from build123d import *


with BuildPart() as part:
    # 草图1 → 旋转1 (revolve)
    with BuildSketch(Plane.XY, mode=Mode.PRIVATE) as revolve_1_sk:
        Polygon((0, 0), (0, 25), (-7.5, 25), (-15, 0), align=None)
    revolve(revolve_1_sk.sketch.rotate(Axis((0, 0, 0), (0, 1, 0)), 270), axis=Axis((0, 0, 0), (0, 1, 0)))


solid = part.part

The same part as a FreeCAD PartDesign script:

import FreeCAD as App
import Part
import Sketcher
from FreeCAD import Vector
Q = App.Units.Quantity


def add_polygon(sketch, points):
    """Adds a closed chain of lines whose ends are joined by coincident constraints."""
    first, n = sketch.GeometryCount, len(points)
    for a, b in zip(points, points[1:] + points[:1]):
        sketch.addGeometry(Part.LineSegment(App.Vector(*a, 0), App.Vector(*b, 0)), False)
    for i in range(n):
        sketch.addConstraint(Sketcher.Constraint("Coincident", first + i, 2, first + (i + 1) % n, 1))

doc = App.newDocument("Part")
params = doc.addObject("Spreadsheet::Sheet", "Params")
for row, (alias, value) in enumerate([
    ("sketch1_width", "15 mm"),
    ("sketch1_height", "25 mm"),
    ("sketch1_width2", "7.5 mm"),
    ("revolution_angle", "360 deg"),
], start=1):
    params.set(f"A{row}", alias)
    params.set(f"B{row}", "=" + value)
    params.setAlias(f"B{row}", alias)

body = doc.addObject("PartDesign::Body", "Body")

# Sketch on XY plane
sketch1 = body.newObject("Sketcher::SketchObject", "Sketch")
sketch1.AttachmentSupport = (doc.getObject("XY_Plane"), [""])
sketch1.MapMode = "FlatFace"
add_polygon(sketch1, [(0, 0), (0, 25), (-7.5, 25), (-15, 0)])  # lines 0-3
sketch1.addConstraint([
    Sketcher.Constraint("Vertical", 0),
    Sketcher.Constraint("Horizontal", 1),
    Sketcher.Constraint("Horizontal", 3),
    Sketcher.Constraint("Coincident", 3, 2, -1, 1),
    Sketcher.Constraint("DistanceX", 3, 1, 3, 2, Q("15 mm")),
    Sketcher.Constraint("DistanceY", 0, 1, 0, 2, Q("25 mm")),
    Sketcher.Constraint("DistanceX", 1, 2, 1, 1, Q("7.5 mm")),
])
sketch1.setExpression("Constraints[8]", "Params.sketch1_width")
sketch1.setExpression("Constraints[9]", "Params.sketch1_height")
sketch1.setExpression("Constraints[10]", "Params.sketch1_width2")
revolution = body.newObject("PartDesign::Revolution", "Revolution")
revolution.Profile = sketch1
revolution.ReferenceAxis = (sketch1, ["V_Axis"])
revolution.setExpression("Angle", "Params.revolution_angle")

doc.recompute()
